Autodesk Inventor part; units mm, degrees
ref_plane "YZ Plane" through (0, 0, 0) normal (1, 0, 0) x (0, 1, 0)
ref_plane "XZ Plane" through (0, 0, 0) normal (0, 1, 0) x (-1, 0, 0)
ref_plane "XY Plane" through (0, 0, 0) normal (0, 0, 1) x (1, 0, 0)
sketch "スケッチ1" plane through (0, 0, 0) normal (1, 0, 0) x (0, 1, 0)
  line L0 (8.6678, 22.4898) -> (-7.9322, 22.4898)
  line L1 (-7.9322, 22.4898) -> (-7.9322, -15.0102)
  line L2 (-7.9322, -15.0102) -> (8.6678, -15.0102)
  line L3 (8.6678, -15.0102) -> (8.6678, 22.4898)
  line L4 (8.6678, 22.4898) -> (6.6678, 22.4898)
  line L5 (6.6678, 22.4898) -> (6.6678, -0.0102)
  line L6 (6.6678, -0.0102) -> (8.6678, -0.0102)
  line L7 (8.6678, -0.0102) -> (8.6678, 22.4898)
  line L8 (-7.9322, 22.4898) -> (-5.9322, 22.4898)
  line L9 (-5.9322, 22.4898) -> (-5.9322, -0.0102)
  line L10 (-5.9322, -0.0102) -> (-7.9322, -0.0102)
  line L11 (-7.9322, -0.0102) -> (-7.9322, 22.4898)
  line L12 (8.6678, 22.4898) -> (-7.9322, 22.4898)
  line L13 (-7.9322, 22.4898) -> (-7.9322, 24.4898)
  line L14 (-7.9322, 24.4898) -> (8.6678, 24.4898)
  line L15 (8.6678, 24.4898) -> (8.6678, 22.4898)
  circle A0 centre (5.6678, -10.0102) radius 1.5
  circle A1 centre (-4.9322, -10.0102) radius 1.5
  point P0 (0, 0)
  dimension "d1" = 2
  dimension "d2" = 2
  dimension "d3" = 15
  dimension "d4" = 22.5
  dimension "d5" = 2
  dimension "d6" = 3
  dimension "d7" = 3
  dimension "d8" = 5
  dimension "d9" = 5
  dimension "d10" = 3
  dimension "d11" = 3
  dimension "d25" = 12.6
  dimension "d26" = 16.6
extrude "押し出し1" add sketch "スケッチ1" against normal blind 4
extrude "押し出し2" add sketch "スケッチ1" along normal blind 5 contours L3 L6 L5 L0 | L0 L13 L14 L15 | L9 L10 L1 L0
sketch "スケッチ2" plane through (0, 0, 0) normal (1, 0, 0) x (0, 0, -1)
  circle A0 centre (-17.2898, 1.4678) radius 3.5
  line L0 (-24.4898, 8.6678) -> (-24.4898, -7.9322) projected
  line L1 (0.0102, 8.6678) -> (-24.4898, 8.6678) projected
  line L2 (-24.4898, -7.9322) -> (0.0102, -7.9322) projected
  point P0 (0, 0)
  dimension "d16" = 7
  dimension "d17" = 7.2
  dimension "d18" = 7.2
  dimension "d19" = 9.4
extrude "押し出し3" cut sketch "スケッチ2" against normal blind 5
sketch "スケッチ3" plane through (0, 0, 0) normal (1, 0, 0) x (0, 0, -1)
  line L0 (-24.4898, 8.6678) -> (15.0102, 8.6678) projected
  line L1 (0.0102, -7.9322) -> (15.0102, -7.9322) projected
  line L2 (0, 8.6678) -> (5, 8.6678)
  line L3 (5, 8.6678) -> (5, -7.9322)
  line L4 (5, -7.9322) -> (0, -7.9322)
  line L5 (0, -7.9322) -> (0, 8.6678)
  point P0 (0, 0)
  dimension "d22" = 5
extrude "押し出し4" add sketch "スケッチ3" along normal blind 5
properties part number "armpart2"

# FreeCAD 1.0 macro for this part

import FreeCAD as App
import Part
import Sketcher

doc = App.newDocument("Part")
params = doc.addObject("Spreadsheet::Sheet", "Params")
for row, (alias, value) in enumerate([
    ("sketch1_diameter", "3 mm"),
    ("sketch1_width", "16.6 mm"),
    ("sketch1_height", "39.5 mm"),
    ("pad1_length", "4 mm"),
    ("sketch2_width", "2 mm"),
    ("sketch2_width2", "16.6 mm"),
    ("sketch2_height", "22.5 mm"),
    ("pad2_length", "5 mm"),
    ("sketch3_diameter", "7 mm"),
    ("pocket1_length", "5 mm"),
    ("sketch4_height", "5 mm"),
    ("sketch4_width", "16.6 mm"),
    ("pad3_length", "5 mm"),
], start=1):
    params.set(f"A{row}", alias)
    params.set(f"B{row}", "=" + value)
    params.setAlias(f"B{row}", alias)

body = doc.addObject("PartDesign::Body", "Body")

# Sketch on YZ plane
sketch1 = body.newObject("Sketcher::SketchObject", "Sketch")
sketch1.AttachmentSupport = (doc.getObject("YZ_Plane"), [""])
sketch1.MapMode = "FlatFace"
sketch1.addGeometry(Part.LineSegment(App.Vector(8.7, 24.5, 0), App.Vector(-7.9, 24.5, 0)), False)
sketch1.addGeometry(Part.LineSegment(App.Vector(-7.9, 24.5, 0), App.Vector(-7.9, -15, 0)), False)
sketch1.addGeometry(Part.LineSegment(App.Vector(-7.9, -15, 0), App.Vector(8.7, -15, 0)), False)
sketch1.addGeometry(Part.LineSegment(App.Vector(8.7, -15, 0), App.Vector(8.7, 24.5, 0)), False)
sketch1.addGeometry(Part.Circle(App.Vector(-4.9, -10, 0), App.Vector(0, 0, 1), 1.5), False)
sketch1.addGeometry(Part.Circle(App.Vector(5.7, -10, 0), App.Vector(0, 0, 1), 1.5), False)
sketch1.addConstraint(Sketcher.Constraint("Coincident", 0, 2, 1, 1))
sketch1.addConstraint(Sketcher.Constraint("Coincident", 1, 2, 2, 1))
sketch1.addConstraint(Sketcher.Constraint("Coincident", 2, 2, 3, 1))
sketch1.addConstraint(Sketcher.Constraint("Coincident", 3, 2, 0, 1))
sketch1.addConstraint(Sketcher.Constraint("Horizontal", 0))
sketch1.addConstraint(Sketcher.Constraint("Vertical", 1))
sketch1.addConstraint(Sketcher.Constraint("Horizontal", 2))
sketch1.addConstraint(Sketcher.Constraint("Vertical", 3))
sketch1.addConstraint(Sketcher.Constraint("Equal", 4, 5))
sketch1.addConstraint(Sketcher.Constraint("Horizontal", 4, 3, 5, 3))
sketch1.addConstraint(Sketcher.Constraint("Diameter", 4, 3.0))
sketch1.addConstraint(Sketcher.Constraint("DistanceX", 0, 2, 0, 1, 16.6))
sketch1.addConstraint(Sketcher.Constraint("DistanceX", 0, 2, 4, 3, 3.0))
sketch1.addConstraint(Sketcher.Constraint("DistanceY", 1, 2, 4, 3, 5.0))
sketch1.addConstraint(Sketcher.Constraint("DistanceX", 5, 3, 2, 2, 3.0))
sketch1.addConstraint(Sketcher.Constraint("DistanceY", 1, 2, 1, 1, 39.5))
sketch1.addConstraint(Sketcher.Constraint("DistanceX", 4, 3, -1, 1, 4.9322))
sketch1.addConstraint(Sketcher.Constraint("DistanceY", 4, 3, -1, 1, 10.0102))
sketch1.setExpression("Constraints[10]", "Params.sketch1_diameter")
sketch1.setExpression("Constraints[11]", "Params.sketch1_width")
sketch1.setExpression("Constraints[15]", "Params.sketch1_height")
pad1 = body.newObject("PartDesign::Pad", "Pad")
pad1.Profile = sketch1
pad1.setExpression("Length", "Params.pad1_length")
pad1.Reversed = True

# Sketch on YZ plane
sketch2 = body.newObject("Sketcher::SketchObject", "Sketch001")
sketch2.AttachmentSupport = (doc.getObject("YZ_Plane"), [""])
sketch2.MapMode = "FlatFace"
sketch2.addGeometry(Part.LineSegment(App.Vector(8.7, 0, 0), App.Vector(8.7, 24.5, 0)), False)
sketch2.addGeometry(Part.LineSegment(App.Vector(8.7, 24.5, 0), App.Vector(-7.9, 24.5, 0)), False)
sketch2.addGeometry(Part.LineSegment(App.Vector(-7.9, 24.5, 0), App.Vector(-7.9, 0, 0)), False)
sketch2.addGeometry(Part.LineSegment(App.Vector(-7.9, 0, 0), App.Vector(-5.9, 0, 0)), False)
sketch2.addGeometry(Part.LineSegment(App.Vector(-5.9, 0, 0), App.Vector(-5.9, 22.5, 0)), False)
sketch2.addGeometry(Part.LineSegment(App.Vector(-5.9, 22.5, 0), App.Vector(6.7, 22.5, 0)), False)
sketch2.addGeometry(Part.LineSegment(App.Vector(6.7, 22.5, 0), App.Vector(6.7, 0, 0)), False)
sketch2.addGeometry(Part.LineSegment(App.Vector(6.7, 0, 0), App.Vector(8.7, 0, 0)), False)
sketch2.addConstraint(Sketcher.Constraint("Coincident", 0, 2, 1, 1))
sketch2.addConstraint(Sketcher.Constraint("Coincident", 1, 2, 2, 1))
sketch2.addConstraint(Sketcher.Constraint("Coincident", 2, 2, 3, 1))
sketch2.addConstraint(Sketcher.Constraint("Coincident", 3, 2, 4, 1))
sketch2.addConstraint(Sketcher.Constraint("Coincident", 4, 2, 5, 1))
sketch2.addConstraint(Sketcher.Constraint("Coincident", 5, 2, 6, 1))
sketch2.addConstraint(Sketcher.Constraint("Coincident", 6, 2, 7, 1))
sketch2.addConstraint(Sketcher.Constraint("Coincident", 7, 2, 0, 1))
sketch2.addConstraint(Sketcher.Constraint("Vertical", 0))
sketch2.addConstraint(Sketcher.Constraint("Horizontal", 1))
sketch2.addConstraint(Sketcher.Constraint("Vertical", 2))
sketch2.addConstraint(Sketcher.Constraint("Horizontal", 3))
sketch2.addConstraint(Sketcher.Constraint("Vertical", 4))
sketch2.addConstraint(Sketcher.Constraint("Horizontal", 5))
sketch2.addConstraint(Sketcher.Constraint("Vertical", 6))
sketch2.addConstraint(Sketcher.Constraint("Horizontal", 7))
sketch2.addConstraint(Sketcher.Constraint("Horizontal", 3, 2, 6, 2))
sketch2.addConstraint(Sketcher.Constraint("Equal", 3, 7))
sketch2.addConstraint(Sketcher.Constraint("DistanceX", 3, 1, 3, 2, 2.0))
sketch2.addConstraint(Sketcher.Constraint("DistanceX", 1, 2, 1, 1, 16.6))
sketch2.addConstraint(Sketcher.Constraint("DistanceY", 4, 1, 4, 2, 22.5))
sketch2.addConstraint(Sketcher.Constraint("DistanceY", 4, 2, 1, 2, 2.0))
sketch2.addConstraint(Sketcher.Constraint("DistanceX", -1, 1, 0, 2, 8.6678))
sketch2.addConstraint(Sketcher.Constraint("DistanceY", -1, 1, 0, 2, 24.4898))
sketch2.setExpression("Constraints[18]", "Params.sketch2_width")
sketch2.setExpression("Constraints[19]", "Params.sketch2_width2")
sketch2.setExpression("Constraints[20]", "Params.sketch2_height")
pad2 = body.newObject("PartDesign::Pad", "Pad001")
pad2.Profile = sketch2
pad2.setExpression("Length", "Params.pad2_length")

# Sketch on YZ plane
sketch3 = body.newObject("Sketcher::SketchObject", "Sketch002")
sketch3.AttachmentSupport = (doc.getObject("YZ_Plane"), [""])
sketch3.MapMode = "FlatFace"
sketch3.addGeometry(Part.Circle(App.Vector(1.5, 17.3, 0), App.Vector(0, 0, 1), 3.5), False)
sketch3.addConstraint(Sketcher.Constraint("Diameter", 0, 7.0))
sketch3.addConstraint(Sketcher.Constraint("DistanceX", -1, 1, 0, 3, 1.4678))
sketch3.addConstraint(Sketcher.Constraint("DistanceY", -1, 1, 0, 3, 17.2898))
sketch3.setExpression("Constraints[0]", "Params.sketch3_diameter")
pocket1 = body.newObject("PartDesign::Pocket", "Pocket")
pocket1.Profile = sketch3
pocket1.setExpression("Length", "Params.pocket1_length")

# Sketch on YZ plane
sketch4 = body.newObject("Sketcher::SketchObject", "Sketch003")
sketch4.AttachmentSupport = (doc.getObject("YZ_Plane"), [""])
sketch4.MapMode = "FlatFace"
sketch4.addGeometry(Part.LineSegment(App.Vector(9, -5, 0), App.Vector(9, 0, 0)), False)
sketch4.addGeometry(Part.LineSegment(App.Vector(9, 0, 0), App.Vector(-8, 0, 0)), False)
sketch4.addGeometry(Part.LineSegment(App.Vector(-8, 0, 0), App.Vector(-8, -5, 0)), False)
sketch4.addGeometry(Part.LineSegment(App.Vector(-8, -5, 0), App.Vector(9, -5, 0)), False)
sketch4.addConstraint(Sketcher.Constraint("Coincident", 0, 2, 1, 1))
sketch4.addConstraint(Sketcher.Constraint("Coincident", 1, 2, 2, 1))
sketch4.addConstraint(Sketcher.Constraint("Coincident", 2, 2, 3, 1))
sketch4.addConstraint(Sketcher.Constraint("Coincident", 3, 2, 0, 1))
sketch4.addConstraint(Sketcher.Constraint("Vertical", 0))
sketch4.addConstraint(Sketcher.Constraint("Horizontal", 1))
sketch4.addConstraint(Sketcher.Constraint("Vertical", 2))
sketch4.addConstraint(Sketcher.Constraint("Horizontal", 3))
sketch4.addConstraint(Sketcher.Constraint("PointOnObject", 0, 2, -1))
sketch4.addConstraint(Sketcher.Constraint("DistanceY", 0, 1, 0, 2, 5.0))
sketch4.addConstraint(Sketcher.Constraint("DistanceX", 1, 2, 1, 1, 16.6))
sketch4.addConstraint(Sketcher.Constraint("DistanceX", -1, 1, 0, 2, 8.6678))
sketch4.setExpression("Constraints[9]", "Params.sketch4_height")
sketch4.setExpression("Constraints[10]", "Params.sketch4_width")
pad3 = body.newObject("PartDesign::Pad", "Pad002")
pad3.Profile = sketch4
pad3.setExpression("Length", "Params.pad3_length")

doc.recompute()
